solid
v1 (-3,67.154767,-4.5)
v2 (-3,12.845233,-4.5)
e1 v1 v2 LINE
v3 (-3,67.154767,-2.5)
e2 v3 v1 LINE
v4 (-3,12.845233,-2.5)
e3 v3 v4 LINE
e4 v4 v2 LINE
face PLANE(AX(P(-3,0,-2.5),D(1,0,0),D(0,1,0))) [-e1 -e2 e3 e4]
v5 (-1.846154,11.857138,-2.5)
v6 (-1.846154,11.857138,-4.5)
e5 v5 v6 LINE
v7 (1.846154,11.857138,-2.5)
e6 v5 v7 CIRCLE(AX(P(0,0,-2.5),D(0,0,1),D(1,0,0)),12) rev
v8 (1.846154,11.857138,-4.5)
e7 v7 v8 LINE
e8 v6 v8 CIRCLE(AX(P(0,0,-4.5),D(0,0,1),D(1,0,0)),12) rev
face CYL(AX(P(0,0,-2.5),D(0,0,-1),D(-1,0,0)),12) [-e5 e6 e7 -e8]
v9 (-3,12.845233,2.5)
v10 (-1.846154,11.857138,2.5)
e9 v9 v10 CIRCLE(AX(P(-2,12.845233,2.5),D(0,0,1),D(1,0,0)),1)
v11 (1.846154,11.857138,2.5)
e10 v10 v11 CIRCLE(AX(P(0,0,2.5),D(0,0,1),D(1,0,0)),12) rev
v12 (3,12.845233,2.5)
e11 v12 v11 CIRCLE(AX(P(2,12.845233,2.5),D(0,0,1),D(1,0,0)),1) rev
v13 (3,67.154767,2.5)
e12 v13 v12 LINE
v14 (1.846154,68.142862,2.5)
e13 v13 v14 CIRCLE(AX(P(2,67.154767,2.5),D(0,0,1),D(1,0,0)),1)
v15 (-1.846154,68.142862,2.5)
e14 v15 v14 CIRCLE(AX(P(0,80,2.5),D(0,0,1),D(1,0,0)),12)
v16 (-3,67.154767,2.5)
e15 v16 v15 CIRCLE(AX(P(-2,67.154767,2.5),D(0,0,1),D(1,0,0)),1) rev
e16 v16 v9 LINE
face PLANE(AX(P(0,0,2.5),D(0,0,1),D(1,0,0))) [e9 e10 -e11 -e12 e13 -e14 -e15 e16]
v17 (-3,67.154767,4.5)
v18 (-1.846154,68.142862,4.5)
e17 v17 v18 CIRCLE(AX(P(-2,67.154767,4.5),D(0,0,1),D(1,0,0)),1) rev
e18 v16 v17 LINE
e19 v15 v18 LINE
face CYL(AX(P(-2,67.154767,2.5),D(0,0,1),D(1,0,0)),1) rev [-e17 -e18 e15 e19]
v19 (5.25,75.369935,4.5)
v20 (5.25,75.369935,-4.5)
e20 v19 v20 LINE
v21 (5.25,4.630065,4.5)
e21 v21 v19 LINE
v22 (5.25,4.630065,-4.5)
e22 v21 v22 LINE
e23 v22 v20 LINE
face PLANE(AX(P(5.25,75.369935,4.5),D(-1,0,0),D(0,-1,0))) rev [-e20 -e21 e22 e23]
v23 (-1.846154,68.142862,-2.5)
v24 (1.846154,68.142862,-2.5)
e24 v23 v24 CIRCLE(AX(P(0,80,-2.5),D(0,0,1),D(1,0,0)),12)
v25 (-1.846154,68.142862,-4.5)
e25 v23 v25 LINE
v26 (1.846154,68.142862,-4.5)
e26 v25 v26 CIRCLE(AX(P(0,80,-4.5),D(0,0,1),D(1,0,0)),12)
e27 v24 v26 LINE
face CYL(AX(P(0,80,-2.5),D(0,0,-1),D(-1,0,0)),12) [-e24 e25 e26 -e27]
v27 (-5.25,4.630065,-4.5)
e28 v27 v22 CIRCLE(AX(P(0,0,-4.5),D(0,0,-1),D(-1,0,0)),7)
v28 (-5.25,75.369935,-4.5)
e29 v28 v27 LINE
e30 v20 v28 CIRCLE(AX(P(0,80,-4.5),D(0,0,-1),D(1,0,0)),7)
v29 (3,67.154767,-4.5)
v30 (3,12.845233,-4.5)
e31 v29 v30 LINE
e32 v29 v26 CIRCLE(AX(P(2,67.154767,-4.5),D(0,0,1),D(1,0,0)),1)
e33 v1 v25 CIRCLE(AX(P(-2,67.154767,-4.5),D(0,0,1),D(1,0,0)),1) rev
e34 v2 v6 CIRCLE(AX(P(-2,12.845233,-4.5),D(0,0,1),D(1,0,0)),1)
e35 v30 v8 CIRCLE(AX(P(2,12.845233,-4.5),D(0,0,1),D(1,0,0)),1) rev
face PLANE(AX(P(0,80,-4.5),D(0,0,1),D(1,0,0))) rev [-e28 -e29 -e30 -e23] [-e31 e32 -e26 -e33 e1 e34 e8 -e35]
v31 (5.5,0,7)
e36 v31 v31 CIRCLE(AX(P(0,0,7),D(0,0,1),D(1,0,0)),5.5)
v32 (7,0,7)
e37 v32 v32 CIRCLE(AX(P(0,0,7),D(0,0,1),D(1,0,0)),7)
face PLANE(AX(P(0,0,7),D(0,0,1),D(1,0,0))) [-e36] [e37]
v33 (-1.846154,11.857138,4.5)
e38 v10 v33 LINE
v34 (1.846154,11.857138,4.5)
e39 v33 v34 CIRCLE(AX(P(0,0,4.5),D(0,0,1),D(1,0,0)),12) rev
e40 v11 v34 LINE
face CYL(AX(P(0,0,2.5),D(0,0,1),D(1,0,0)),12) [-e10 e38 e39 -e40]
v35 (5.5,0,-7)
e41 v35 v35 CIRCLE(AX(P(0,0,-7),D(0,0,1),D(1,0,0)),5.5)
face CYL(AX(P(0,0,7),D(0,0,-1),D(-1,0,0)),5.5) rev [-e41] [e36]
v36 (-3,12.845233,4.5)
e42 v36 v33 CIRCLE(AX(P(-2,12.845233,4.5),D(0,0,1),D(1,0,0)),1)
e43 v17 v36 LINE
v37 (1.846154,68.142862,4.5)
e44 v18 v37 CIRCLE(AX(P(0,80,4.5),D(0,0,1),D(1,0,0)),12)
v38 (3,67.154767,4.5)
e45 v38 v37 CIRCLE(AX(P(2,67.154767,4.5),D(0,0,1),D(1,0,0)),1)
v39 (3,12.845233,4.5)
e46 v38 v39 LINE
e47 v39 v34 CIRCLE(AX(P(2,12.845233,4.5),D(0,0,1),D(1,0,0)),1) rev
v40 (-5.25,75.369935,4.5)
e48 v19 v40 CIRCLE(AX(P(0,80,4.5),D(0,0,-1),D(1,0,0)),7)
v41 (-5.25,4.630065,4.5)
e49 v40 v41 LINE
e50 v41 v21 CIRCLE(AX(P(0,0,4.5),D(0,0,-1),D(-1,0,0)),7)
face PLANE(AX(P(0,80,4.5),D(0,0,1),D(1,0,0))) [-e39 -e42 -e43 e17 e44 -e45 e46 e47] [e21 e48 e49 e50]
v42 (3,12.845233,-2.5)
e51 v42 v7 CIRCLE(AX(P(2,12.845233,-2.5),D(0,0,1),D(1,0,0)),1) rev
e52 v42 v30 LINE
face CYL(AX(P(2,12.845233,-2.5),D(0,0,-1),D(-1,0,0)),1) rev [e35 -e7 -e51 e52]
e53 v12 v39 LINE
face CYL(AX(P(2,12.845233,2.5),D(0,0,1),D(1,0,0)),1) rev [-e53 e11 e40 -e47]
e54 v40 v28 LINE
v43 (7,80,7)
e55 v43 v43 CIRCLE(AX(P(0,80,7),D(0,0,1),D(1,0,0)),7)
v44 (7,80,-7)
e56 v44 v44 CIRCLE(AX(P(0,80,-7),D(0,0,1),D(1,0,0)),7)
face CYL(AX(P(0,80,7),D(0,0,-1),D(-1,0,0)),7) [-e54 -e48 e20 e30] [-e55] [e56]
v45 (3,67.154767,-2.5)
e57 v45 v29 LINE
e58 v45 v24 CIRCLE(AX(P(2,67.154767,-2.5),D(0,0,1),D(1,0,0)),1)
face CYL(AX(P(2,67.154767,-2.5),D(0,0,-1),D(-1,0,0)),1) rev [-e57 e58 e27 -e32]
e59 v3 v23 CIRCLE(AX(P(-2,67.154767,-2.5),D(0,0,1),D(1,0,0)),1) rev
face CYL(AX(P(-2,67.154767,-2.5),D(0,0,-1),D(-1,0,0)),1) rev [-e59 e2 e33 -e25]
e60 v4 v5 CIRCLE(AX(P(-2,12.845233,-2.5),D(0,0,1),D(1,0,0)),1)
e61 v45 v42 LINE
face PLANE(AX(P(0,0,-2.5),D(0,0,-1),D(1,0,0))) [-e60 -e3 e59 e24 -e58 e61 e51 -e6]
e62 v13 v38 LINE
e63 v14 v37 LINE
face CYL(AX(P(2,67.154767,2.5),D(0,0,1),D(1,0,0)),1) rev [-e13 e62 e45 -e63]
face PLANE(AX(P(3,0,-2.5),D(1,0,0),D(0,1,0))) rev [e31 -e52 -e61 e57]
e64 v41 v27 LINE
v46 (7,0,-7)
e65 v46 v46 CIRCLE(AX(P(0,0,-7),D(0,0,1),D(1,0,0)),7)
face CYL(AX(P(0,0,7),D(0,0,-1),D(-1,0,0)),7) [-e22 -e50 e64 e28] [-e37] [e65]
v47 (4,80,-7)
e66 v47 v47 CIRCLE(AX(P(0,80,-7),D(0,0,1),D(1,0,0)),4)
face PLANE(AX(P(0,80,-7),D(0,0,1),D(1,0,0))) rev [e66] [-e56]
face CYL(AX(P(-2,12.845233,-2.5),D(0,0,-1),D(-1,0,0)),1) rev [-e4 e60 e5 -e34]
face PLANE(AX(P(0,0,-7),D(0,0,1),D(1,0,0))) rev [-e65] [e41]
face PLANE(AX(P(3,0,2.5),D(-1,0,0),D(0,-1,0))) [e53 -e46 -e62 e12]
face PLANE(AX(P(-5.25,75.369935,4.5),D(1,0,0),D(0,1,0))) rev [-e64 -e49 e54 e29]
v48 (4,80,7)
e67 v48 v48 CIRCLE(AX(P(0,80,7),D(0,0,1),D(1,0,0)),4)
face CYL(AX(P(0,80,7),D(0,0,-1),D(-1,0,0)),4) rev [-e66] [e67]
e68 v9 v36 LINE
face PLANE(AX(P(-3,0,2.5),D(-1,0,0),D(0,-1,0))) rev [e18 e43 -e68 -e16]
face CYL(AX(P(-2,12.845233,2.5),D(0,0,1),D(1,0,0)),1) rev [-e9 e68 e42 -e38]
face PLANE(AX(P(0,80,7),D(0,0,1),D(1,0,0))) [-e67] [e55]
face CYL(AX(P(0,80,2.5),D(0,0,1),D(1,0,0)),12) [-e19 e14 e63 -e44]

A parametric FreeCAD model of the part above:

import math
import FreeCAD as App
import Part
import Sketcher

doc = App.newDocument("Part")
params = doc.addObject("Spreadsheet::Sheet", "Params")
for row, (alias, value) in enumerate([
    ("sketch1_diameter", "14 mm"),
    ("sketch1_diameter2", "11 mm"),
    ("pad1_length", "14 mm"),
    ("sketch2_diameter", "14 mm"),
    ("sketch2_diameter2", "8 mm"),
    ("pad2_length", "14 mm"),
    ("sketch3_radius", "7 mm"),
    ("pad3_length", "9 mm"),
    ("sketch4_radius", "1 mm"),
    ("sketch4_radius2", "12 mm"),
    ("pocket1_length", "2 mm"),
], start=1):
    params.set(f"A{row}", alias)
    params.set(f"B{row}", "=" + value)
    params.setAlias(f"B{row}", alias)

body = doc.addObject("PartDesign::Body", "Body")

# Sketch on XY plane
sketch1 = body.newObject("Sketcher::SketchObject", "Sketch")
sketch1.AttachmentSupport = (doc.getObject("XY_Plane"), [""])
sketch1.MapMode = "FlatFace"
sketch1.addGeometry([
    Part.Circle(App.Vector(0, 0, 0), App.Vector(0, 0, 1), 7),
    Part.Circle(App.Vector(0, 0, 0), App.Vector(0, 0, 1), 5.5),
], False)
sketch1.addConstraint([
    Sketcher.Constraint("Coincident", 0, 3, -1, 1),
    Sketcher.Constraint("Coincident", 1, 3, -1, 1),
    Sketcher.Constraint("Diameter", 0, 14.0),
    Sketcher.Constraint("Diameter", 1, 11.0),
])
sketch1.setExpression("Constraints[2]", "Params.sketch1_diameter")
sketch1.setExpression("Constraints[3]", "Params.sketch1_diameter2")
pad1 = body.newObject("PartDesign::Pad", "Pad")
pad1.Profile = sketch1
pad1.setExpression("Length", "Params.pad1_length")
pad1.Midplane = True
body2 = doc.addObject("PartDesign::Body", "Body001")

# Sketch on XY plane
sketch2 = body2.newObject("Sketcher::SketchObject", "Sketch001")
sketch2.AttachmentSupport = (doc.getObject("XY_Plane001"), [""])
sketch2.MapMode = "FlatFace"
sketch2.addGeometry([
    Part.Circle(App.Vector(0, 80, 0), App.Vector(0, 0, 1), 7),
    Part.Circle(App.Vector(0, 80, 0), App.Vector(0, 0, 1), 4),
], False)
sketch2.addConstraint([
    Sketcher.Constraint("Coincident", 1, 3, 0, 3),
    Sketcher.Constraint("PointOnObject", 0, 3, -2),
    Sketcher.Constraint("Diameter", 0, 14.0),
    Sketcher.Constraint("Diameter", 1, 8.0),
    Sketcher.Constraint("DistanceY", -1, 1, 0, 3, 80.0),
])
sketch2.setExpression("Constraints[2]", "Params.sketch2_diameter")
sketch2.setExpression("Constraints[3]", "Params.sketch2_diameter2")
pad2 = body2.newObject("PartDesign::Pad", "Pad001")
pad2.Profile = sketch2
pad2.setExpression("Length", "Params.pad2_length")
pad2.Midplane = True
body.AllowCompound = True
doc.recompute()

boolean = body.newObject("PartDesign::Boolean", "Boolean")
boolean.Type = "Fuse"
boolean.addObjects([body2])

# Sketch on XY plane
sketch3 = body.newObject("Sketcher::SketchObject", "Sketch002")
sketch3.AttachmentSupport = (doc.getObject("XY_Plane"), [""])
sketch3.MapMode = "FlatFace"
sketch3.addGeometry([
    Part.LineSegment(App.Vector(-5.25, 75.369935, 0), App.Vector(-5.25, 4.630065, 0)),
    Part.ArcOfCircle(Part.Circle(App.Vector(0, 0, 0), App.Vector(0, 0, 1), 7), math.radians(41.409622), math.radians(138.590378)),
    Part.LineSegment(App.Vector(5.25, 4.630065, 0), App.Vector(5.25, 75.369935, 0)),
    Part.ArcOfCircle(Part.Circle(App.Vector(0, 80, 0), App.Vector(0, 0, 1), 7), math.radians(-138.590378), math.radians(-41.409622)),
], False)
sketch3.addConstraint([
    Sketcher.Constraint("Coincident", 0, 2, 1, 2),
    Sketcher.Constraint("Coincident", 1, 1, 2, 1),
    Sketcher.Constraint("Coincident", 2, 2, 3, 2),
    Sketcher.Constraint("Coincident", 3, 1, 0, 1),
    Sketcher.Constraint("Vertical", 0),
    Sketcher.Constraint("Vertical", 2),
    Sketcher.Constraint("Coincident", 1, 3, -1, 1),
    Sketcher.Constraint("Equal", 1, 3),
    Sketcher.Constraint("Symmetric", 2, 2, 3, 1, -2),
    Sketcher.Constraint("Radius", 1, 7.0),
    Sketcher.Constraint("DistanceY", -1, 1, 3, 3, 80.0),
    Sketcher.Constraint("DistanceX", 0, 2, 1, 1, 10.5),
])
sketch3.setExpression("Constraints[9]", "Params.sketch3_radius")
pad3 = body.newObject("PartDesign::Pad", "Pad002")
pad3.Profile = sketch3
pad3.setExpression("Length", "Params.pad3_length")
pad3.Midplane = True

# Sketch on XY plane
sketch4 = body.newObject("Sketcher::SketchObject", "Sketch003")
sketch4.AttachmentSupport = (doc.getObject("XY_Plane"), [""])
sketch4.MapMode = "FlatFace"
sketch4.AttachmentOffset = App.Placement(App.Vector(0, 0, 4.5), App.Rotation())
sketch4.addGeometry([
    Part.ArcOfCircle(Part.Circle(App.Vector(-2, 67.154767, 0), App.Vector(0, 0, 1), 1), math.radians(81.150117), math.radians(180)),  # 0
    Part.LineSegment(App.Vector(-3, 67.154767, 0), App.Vector(-3, 12.845233, 0)),  # 1
    Part.ArcOfCircle(Part.Circle(App.Vector(-2, 12.845233, 0), App.Vector(0, 0, 1), 1), math.radians(180), math.radians(278.849883)),  # 2
    Part.ArcOfCircle(Part.Circle(App.Vector(0, 0, 0), App.Vector(0, 0, 1), 12), math.radians(81.150117), math.radians(98.849883)),  # 3
    Part.ArcOfCircle(Part.Circle(App.Vector(2, 12.845233, 0), App.Vector(0, 0, 1), 1), math.radians(-98.849883), math.radians(0)),  # 4
    Part.LineSegment(App.Vector(3, 12.845233, 0), App.Vector(3, 67.154767, 0)),  # 5
    Part.ArcOfCircle(Part.Circle(App.Vector(2, 67.154767, 0), App.Vector(0, 0, 1), 1), math.radians(0), math.radians(98.849883)),  # 6
    Part.ArcOfCircle(Part.Circle(App.Vector(0, 80, 0), App.Vector(0, 0, 1), 12), math.radians(-98.849883), math.radians(-81.150117)),  # 7
], False)
sketch4.addConstraint([
    Sketcher.Constraint("Tangent", 0, 2, 1, 1),
    Sketcher.Constraint("Tangent", 1, 2, 2, 1),
    Sketcher.Constraint("Tangent", 2, 2, 3, 2),
    Sketcher.Constraint("Tangent", 3, 1, 4, 1),
    Sketcher.Constraint("Tangent", 4, 2, 5, 1),
    Sketcher.Constraint("Tangent", 5, 2, 6, 1),
    Sketcher.Constraint("Tangent", 6, 2, 7, 2),
    Sketcher.Constraint("Tangent", 7, 1, 0, 1),
    Sketcher.Constraint("Vertical", 1),
    Sketcher.Constraint("Vertical", 5),
    Sketcher.Constraint("Coincident", 3, 3, -1, 1),
    Sketcher.Constraint("Equal", 0, 2),
    Sketcher.Constraint("Equal", 2, 4),
    Sketcher.Constraint("Equal", 4, 6),
    Sketcher.Constraint("Equal", 3, 7),
    Sketcher.Constraint("Symmetric", 0, 3, 6, 3, -2),
    Sketcher.Constraint("Radius", 0, 1.0),
    Sketcher.Constraint("Radius", 3, 12.0),
    Sketcher.Constraint("DistanceX", 0, 3, -1, 1, 2.0),
    Sketcher.Constraint("DistanceY", -1, 1, 7, 3, 80.0),
])
sketch4.setExpression("Constraints[16]", "Params.sketch4_radius")
sketch4.setExpression("Constraints[17]", "Params.sketch4_radius2")
pocket1 = body.newObject("PartDesign::Pocket", "Pocket")
pocket1.Profile = sketch4
pocket1.setExpression("Length", "Params.pocket1_length")
doc.recompute()

mirrored = body.newObject("PartDesign::Mirrored", "Mirrored")
mirrored.Originals = [pocket1]
mirrored.MirrorPlane = (doc.getObject("XY_Plane"), [""])
body.Tip = mirrored

doc.recompute()
